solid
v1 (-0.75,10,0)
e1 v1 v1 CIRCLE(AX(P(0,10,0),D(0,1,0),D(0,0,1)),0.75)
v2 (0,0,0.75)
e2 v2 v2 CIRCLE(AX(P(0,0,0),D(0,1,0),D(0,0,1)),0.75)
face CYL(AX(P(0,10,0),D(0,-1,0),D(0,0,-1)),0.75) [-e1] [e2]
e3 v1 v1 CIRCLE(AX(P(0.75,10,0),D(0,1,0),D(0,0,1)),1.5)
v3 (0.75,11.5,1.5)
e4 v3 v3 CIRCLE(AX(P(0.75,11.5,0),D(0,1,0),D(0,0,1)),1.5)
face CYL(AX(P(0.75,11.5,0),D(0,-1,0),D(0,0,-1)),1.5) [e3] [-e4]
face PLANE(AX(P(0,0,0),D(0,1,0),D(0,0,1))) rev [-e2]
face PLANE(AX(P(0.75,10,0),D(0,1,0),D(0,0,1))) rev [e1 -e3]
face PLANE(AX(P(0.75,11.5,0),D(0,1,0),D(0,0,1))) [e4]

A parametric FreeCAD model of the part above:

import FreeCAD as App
import Part
import Sketcher

V = App.Vector
Q = App.Units.Quantity

doc = App.newDocument("Part")
body = doc.addObject("PartDesign::Body", "Body")

sketch1 = body.newObject("Sketcher::SketchObject", "Sketch")
sketch1.AttachmentSupport = (doc.getObject("XZ_Plane"), [""])
sketch1.MapMode = "FlatFace"
sketch1.addGeometry(Part.Circle(V(0, 0, 0), V(0, 0, 1), 0.8), False)
sketch1.addConstraint([
    Sketcher.Constraint("Coincident", 0, 3, -1, 1),
    Sketcher.Constraint("Diameter", 0, Q("1.5 mm")),
])
pad1 = body.newObject("PartDesign::Pad", "Pad")
pad1.Profile = sketch1
pad1.Length = 10
pad1.Reversed = True

sketch2 = body.newObject("Sketcher::SketchObject", "Sketch001")
sketch2.AttachmentSupport = (doc.getObject("XZ_Plane"), [""])
sketch2.MapMode = "FlatFace"
sketch2.AttachmentOffset = App.Placement(V(0, 0, -10), App.Rotation())
sketch2.addGeometry(Part.Circle(V(0.8, 0, 0), V(0, 0, 1), 1.5), False)
sketch2.addConstraint([
    Sketcher.Constraint("PointOnObject", 0, 3, -1),
    Sketcher.Constraint("Diameter", 0, Q("3 mm")),
    Sketcher.Constraint("DistanceX", -1, 1, 0, 3, Q("0.75 mm")),
])
pad2 = body.newObject("PartDesign::Pad", "Pad001")
pad2.Profile = sketch2
pad2.Length = 1.5
pad2.Reversed = True

doc.recompute()
